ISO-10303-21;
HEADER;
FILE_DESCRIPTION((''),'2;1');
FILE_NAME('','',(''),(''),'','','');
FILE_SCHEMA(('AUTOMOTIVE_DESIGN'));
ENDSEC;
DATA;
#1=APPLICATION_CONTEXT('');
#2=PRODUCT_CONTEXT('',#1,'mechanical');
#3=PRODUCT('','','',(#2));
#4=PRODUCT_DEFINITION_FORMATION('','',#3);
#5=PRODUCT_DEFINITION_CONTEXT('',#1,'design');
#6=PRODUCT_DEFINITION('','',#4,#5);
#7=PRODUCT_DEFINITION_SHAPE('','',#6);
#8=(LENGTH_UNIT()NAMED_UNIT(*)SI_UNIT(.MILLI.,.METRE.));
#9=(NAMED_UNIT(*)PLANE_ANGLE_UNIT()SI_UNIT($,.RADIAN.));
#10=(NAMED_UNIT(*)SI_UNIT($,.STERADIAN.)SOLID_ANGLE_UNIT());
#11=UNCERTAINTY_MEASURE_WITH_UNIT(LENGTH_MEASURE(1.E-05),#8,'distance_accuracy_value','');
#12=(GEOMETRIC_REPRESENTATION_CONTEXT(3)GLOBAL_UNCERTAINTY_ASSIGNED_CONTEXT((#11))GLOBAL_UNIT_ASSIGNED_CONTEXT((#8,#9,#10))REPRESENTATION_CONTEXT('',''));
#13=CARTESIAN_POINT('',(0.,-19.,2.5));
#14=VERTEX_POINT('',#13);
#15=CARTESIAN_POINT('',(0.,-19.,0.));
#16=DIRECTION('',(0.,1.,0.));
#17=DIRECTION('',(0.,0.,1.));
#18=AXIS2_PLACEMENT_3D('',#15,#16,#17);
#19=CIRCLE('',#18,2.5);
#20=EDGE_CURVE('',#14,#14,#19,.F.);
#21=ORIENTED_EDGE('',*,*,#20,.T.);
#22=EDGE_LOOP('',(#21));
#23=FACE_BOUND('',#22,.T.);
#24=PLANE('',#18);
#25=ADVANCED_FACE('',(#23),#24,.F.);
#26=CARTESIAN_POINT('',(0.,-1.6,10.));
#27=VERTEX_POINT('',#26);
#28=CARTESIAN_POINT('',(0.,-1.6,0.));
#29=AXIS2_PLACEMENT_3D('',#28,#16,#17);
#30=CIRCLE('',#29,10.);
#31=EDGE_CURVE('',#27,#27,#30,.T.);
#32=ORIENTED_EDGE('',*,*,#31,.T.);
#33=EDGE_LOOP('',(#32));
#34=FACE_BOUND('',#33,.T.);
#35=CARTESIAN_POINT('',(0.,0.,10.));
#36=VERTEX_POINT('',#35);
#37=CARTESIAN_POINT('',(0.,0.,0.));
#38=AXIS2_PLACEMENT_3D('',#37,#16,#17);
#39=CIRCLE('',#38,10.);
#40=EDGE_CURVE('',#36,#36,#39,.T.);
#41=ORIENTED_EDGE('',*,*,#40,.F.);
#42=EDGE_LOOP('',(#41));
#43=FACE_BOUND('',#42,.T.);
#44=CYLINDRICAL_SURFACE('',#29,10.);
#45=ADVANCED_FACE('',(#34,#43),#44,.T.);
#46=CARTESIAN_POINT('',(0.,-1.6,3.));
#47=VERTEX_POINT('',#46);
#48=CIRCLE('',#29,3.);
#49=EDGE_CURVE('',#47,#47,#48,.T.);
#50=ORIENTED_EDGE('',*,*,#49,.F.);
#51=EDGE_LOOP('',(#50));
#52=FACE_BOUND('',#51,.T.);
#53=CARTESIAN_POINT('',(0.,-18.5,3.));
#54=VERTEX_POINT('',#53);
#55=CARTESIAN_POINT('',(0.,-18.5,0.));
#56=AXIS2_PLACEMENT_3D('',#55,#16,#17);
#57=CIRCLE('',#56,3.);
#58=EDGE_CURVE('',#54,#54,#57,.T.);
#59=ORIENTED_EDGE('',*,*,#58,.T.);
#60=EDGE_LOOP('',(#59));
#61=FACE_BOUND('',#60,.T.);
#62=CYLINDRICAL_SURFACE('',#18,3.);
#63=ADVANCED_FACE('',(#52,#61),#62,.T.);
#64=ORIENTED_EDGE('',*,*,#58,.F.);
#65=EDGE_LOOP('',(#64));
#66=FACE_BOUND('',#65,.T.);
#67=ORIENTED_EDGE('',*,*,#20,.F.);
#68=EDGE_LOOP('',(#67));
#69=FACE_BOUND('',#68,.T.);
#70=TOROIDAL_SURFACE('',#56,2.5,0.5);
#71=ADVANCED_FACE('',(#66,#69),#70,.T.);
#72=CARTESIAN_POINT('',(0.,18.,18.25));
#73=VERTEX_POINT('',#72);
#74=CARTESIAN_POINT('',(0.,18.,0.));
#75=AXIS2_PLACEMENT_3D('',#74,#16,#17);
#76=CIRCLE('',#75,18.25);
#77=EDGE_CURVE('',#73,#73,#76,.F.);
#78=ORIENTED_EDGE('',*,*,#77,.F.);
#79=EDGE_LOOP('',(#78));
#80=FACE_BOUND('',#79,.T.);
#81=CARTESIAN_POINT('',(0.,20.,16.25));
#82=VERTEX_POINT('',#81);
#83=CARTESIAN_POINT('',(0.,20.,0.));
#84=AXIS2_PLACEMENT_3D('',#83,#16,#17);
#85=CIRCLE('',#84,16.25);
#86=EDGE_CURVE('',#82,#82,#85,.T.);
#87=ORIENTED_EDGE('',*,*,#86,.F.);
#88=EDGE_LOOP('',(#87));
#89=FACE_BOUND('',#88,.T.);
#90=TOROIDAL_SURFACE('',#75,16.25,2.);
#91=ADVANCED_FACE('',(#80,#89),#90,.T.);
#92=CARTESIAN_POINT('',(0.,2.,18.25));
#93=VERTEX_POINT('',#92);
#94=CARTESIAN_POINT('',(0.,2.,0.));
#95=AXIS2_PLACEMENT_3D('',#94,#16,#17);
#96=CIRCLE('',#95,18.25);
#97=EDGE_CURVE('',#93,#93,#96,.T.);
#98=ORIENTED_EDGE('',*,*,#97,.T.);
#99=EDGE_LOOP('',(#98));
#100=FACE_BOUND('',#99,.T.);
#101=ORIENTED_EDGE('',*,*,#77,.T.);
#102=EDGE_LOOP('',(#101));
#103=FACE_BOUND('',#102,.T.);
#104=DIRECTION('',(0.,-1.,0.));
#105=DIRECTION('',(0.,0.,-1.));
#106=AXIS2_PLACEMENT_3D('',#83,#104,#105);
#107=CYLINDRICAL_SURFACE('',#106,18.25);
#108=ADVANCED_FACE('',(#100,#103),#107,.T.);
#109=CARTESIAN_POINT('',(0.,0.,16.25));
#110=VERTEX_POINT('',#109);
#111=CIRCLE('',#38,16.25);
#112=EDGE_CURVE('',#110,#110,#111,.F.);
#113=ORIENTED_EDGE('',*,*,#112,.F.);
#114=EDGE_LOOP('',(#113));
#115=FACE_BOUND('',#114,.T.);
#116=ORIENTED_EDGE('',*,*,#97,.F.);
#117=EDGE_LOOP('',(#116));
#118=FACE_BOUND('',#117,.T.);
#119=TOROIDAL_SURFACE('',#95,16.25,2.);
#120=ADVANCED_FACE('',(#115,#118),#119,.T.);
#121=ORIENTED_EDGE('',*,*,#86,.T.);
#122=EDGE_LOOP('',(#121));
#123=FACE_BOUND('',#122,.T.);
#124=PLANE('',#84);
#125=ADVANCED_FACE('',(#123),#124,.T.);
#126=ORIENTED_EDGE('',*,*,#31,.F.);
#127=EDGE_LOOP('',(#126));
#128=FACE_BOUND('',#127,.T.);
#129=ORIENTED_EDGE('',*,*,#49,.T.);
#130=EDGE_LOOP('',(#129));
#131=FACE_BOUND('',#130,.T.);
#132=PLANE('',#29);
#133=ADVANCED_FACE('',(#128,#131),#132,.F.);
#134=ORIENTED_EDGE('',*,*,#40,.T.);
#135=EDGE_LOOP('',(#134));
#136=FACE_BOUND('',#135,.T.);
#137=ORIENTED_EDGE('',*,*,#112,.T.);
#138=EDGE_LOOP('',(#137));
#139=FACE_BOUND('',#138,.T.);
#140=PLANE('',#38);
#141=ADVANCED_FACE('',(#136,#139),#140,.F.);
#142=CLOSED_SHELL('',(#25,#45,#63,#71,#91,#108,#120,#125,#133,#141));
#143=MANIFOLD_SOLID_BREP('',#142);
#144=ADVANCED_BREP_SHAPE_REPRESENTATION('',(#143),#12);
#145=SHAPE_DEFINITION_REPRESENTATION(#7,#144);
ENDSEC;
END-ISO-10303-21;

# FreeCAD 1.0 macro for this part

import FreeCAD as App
import Part
import Sketcher
from FreeCAD import Vector


def edges_at(feature, points):
    """Names of the edges that pass closest to the given points."""
    edges = feature.Shape.Edges
    near = lambda p: min(range(len(edges)), key=lambda i: edges[i].distToShape(Part.Vertex(*p))[0])
    return sorted({f"Edge{near(p) + 1}" for p in points})

doc = App.newDocument("Part")
body = doc.addObject("PartDesign::Body", "Body")

# Sketch on XZ plane
sketch1 = body.newObject("Sketcher::SketchObject", "Sketch")
sketch1.AttachmentSupport = (doc.getObject("XZ_Plane"), [""])
sketch1.MapMode = "FlatFace"
sketch1.addGeometry(Part.Circle(Vector(0, 0, 0), Vector(0, 0, 1), 18), False)
sketch1.addConstraint([
    Sketcher.Constraint("Coincident", 0, 3, -1, 1),
    Sketcher.Constraint("Diameter", 0, 36.5),
])
pad1 = body.newObject("PartDesign::Pad", "Pad")
pad1.Profile = sketch1
pad1.Length = 20
pad1.Reversed = True
doc.recompute()

fillet = body.newObject("PartDesign::Fillet", "Fillet")
fillet.Base = (pad1, edges_at(pad1, [(0, 0, -18.25), (0, 20, -18.25)]))
fillet.Radius = 2

# Sketch on XZ plane
sketch2 = body.newObject("Sketcher::SketchObject", "Sketch001")
sketch2.AttachmentSupport = (doc.getObject("XZ_Plane"), [""])
sketch2.MapMode = "FlatFace"
sketch2.addGeometry(Part.Circle(Vector(0, 0, 0), Vector(0, 0, 1), 10), False)
sketch2.addConstraint([
    Sketcher.Constraint("Coincident", 0, 3, -1, 1),
    Sketcher.Constraint("Diameter", 0, 20.0),
])
pad2 = body.newObject("PartDesign::Pad", "Pad001")
pad2.Profile = sketch2
pad2.Length = 1.6

# Sketch on XZ plane
sketch3 = body.newObject("Sketcher::SketchObject", "Sketch002")
sketch3.AttachmentSupport = (doc.getObject("XZ_Plane"), [""])
sketch3.MapMode = "FlatFace"
sketch3.addGeometry(Part.Circle(Vector(0, 0, 0), Vector(0, 0, 1), 3), False)
sketch3.addConstraint([
    Sketcher.Constraint("Coincident", 0, 3, -1, 1),
    Sketcher.Constraint("Diameter", 0, 6.0),
])
pad3 = body.newObject("PartDesign::Pad", "Pad002")
pad3.Profile = sketch3
pad3.Length = 19
doc.recompute()

fillet2 = body.newObject("PartDesign::Fillet", "Fillet001")
fillet2.Base = (pad3, edges_at(pad3, [(0, -19, -3)]))
fillet2.Radius = 0.5

doc.recompute()
